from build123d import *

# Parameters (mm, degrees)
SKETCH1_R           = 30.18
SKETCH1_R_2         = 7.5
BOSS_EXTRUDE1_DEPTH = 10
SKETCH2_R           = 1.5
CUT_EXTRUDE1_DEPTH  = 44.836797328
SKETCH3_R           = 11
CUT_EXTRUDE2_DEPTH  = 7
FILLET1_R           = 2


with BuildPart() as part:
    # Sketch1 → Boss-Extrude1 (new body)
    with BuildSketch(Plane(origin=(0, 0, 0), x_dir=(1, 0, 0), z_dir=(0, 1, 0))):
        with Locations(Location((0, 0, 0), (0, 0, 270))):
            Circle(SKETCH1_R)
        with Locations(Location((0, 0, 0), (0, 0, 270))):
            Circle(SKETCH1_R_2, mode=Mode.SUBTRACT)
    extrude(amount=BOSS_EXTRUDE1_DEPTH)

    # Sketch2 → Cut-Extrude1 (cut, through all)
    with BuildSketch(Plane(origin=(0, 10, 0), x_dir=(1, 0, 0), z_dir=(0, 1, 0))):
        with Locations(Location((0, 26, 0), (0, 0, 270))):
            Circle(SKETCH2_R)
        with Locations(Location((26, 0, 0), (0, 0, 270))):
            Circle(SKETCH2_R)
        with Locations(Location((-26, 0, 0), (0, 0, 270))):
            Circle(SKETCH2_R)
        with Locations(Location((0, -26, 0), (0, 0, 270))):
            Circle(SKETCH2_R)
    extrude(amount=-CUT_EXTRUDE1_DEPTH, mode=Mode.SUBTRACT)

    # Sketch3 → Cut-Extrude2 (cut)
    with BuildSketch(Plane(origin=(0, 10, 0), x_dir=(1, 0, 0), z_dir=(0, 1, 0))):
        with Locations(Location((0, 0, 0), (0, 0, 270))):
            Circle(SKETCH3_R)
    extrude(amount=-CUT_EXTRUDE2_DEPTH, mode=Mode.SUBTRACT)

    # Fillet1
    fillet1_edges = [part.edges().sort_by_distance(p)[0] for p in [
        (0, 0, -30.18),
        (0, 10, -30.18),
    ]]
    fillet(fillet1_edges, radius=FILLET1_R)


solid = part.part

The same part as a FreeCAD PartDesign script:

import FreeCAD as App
import Part
import Sketcher
from FreeCAD import Vector


def edges_at(feature, points):
    """Names of the edges that pass closest to the given points."""
    edges = feature.Shape.Edges
    near = lambda p: min(range(len(edges)), key=lambda i: edges[i].distToShape(Part.Vertex(*p))[0])
    return sorted({f"Edge{near(p) + 1}" for p in points})

doc = App.newDocument("Part")
body = doc.addObject("PartDesign::Body", "Body")

# Sketch on XZ plane
sketch1 = body.newObject("Sketcher::SketchObject", "Sketch")
sketch1.AttachmentSupport = (doc.getObject("XZ_Plane"), [""])
sketch1.MapMode = "FlatFace"
sketch1.addGeometry([
    Part.Circle(Vector(0, 0, 0), Vector(0, 0, 1), 30.18),
    Part.Circle(Vector(0, 0, 0), Vector(0, 0, 1), 7.5),
], False)
sketch1.addConstraint([
    Sketcher.Constraint("Coincident", 0, 3, -1, 1),
    Sketcher.Constraint("Coincident", 1, 3, -1, 1),
    Sketcher.Constraint("Diameter", 1, 15.0),
    Sketcher.Constraint("Diameter", 0, 60.36),
])
pad1 = body.newObject("PartDesign::Pad", "Pad")
pad1.Profile = sketch1
pad1.Length = 10
pad1.Reversed = True

# Sketch on XZ plane
sketch2 = body.newObject("Sketcher::SketchObject", "Sketch001")
sketch2.AttachmentSupport = (doc.getObject("XZ_Plane"), [""])
sketch2.MapMode = "FlatFace"
sketch2.AttachmentOffset = App.Placement(Vector(0, 0, -10), App.Rotation())
sketch2.addGeometry([
    Part.Circle(Vector(0, -26, 0), Vector(0, 0, 1), 1.5),
    Part.Circle(Vector(26, 0, 0), Vector(0, 0, 1), 1.5),
    Part.Circle(Vector(-26, 0, 0), Vector(0, 0, 1), 1.5),
    Part.Circle(Vector(0, 26, 0), Vector(0, 0, 1), 1.5),
], False)
sketch2.addConstraint([
    Sketcher.Constraint("Equal", 0, 1),
    Sketcher.Constraint("Equal", 1, 2),
    Sketcher.Constraint("Equal", 2, 3),
    Sketcher.Constraint("Symmetric", 1, 3, 2, 3, -1, 1),
    Sketcher.Constraint("Symmetric", 0, 3, 3, 3, -1, 1),
    Sketcher.Constraint("PointOnObject", 0, 3, -2),
    Sketcher.Constraint("PointOnObject", 1, 3, -1),
    Sketcher.Constraint("Diameter", 0, 3.0),
    Sketcher.Constraint("DistanceY", 0, 3, -1, 1, 26.0),
    Sketcher.Constraint("DistanceX", -1, 1, 1, 3, 26.0),
])
pocket1 = body.newObject("PartDesign::Pocket", "Pocket")
pocket1.Profile = sketch2
pocket1.Type = "ThroughAll"
pocket1.Reversed = True

# Sketch on XZ plane
sketch3 = body.newObject("Sketcher::SketchObject", "Sketch002")
sketch3.AttachmentSupport = (doc.getObject("XZ_Plane"), [""])
sketch3.MapMode = "FlatFace"
sketch3.AttachmentOffset = App.Placement(Vector(0, 0, -10), App.Rotation())
sketch3.addGeometry(Part.Circle(Vector(0, 0, 0), Vector(0, 0, 1), 11), False)
sketch3.addConstraint([
    Sketcher.Constraint("Coincident", 0, 3, -1, 1),
    Sketcher.Constraint("Diameter", 0, 22.0),
])
pocket2 = body.newObject("PartDesign::Pocket", "Pocket001")
pocket2.Profile = sketch3
pocket2.Length = 7
pocket2.Reversed = True
doc.recompute()

fillet = body.newObject("PartDesign::Fillet", "Fillet")
fillet.Base = (pocket2, edges_at(pocket2, [(0, 0, -30.18), (0, 10, -30.18)]))
fillet.Radius = 2

doc.recompute()
